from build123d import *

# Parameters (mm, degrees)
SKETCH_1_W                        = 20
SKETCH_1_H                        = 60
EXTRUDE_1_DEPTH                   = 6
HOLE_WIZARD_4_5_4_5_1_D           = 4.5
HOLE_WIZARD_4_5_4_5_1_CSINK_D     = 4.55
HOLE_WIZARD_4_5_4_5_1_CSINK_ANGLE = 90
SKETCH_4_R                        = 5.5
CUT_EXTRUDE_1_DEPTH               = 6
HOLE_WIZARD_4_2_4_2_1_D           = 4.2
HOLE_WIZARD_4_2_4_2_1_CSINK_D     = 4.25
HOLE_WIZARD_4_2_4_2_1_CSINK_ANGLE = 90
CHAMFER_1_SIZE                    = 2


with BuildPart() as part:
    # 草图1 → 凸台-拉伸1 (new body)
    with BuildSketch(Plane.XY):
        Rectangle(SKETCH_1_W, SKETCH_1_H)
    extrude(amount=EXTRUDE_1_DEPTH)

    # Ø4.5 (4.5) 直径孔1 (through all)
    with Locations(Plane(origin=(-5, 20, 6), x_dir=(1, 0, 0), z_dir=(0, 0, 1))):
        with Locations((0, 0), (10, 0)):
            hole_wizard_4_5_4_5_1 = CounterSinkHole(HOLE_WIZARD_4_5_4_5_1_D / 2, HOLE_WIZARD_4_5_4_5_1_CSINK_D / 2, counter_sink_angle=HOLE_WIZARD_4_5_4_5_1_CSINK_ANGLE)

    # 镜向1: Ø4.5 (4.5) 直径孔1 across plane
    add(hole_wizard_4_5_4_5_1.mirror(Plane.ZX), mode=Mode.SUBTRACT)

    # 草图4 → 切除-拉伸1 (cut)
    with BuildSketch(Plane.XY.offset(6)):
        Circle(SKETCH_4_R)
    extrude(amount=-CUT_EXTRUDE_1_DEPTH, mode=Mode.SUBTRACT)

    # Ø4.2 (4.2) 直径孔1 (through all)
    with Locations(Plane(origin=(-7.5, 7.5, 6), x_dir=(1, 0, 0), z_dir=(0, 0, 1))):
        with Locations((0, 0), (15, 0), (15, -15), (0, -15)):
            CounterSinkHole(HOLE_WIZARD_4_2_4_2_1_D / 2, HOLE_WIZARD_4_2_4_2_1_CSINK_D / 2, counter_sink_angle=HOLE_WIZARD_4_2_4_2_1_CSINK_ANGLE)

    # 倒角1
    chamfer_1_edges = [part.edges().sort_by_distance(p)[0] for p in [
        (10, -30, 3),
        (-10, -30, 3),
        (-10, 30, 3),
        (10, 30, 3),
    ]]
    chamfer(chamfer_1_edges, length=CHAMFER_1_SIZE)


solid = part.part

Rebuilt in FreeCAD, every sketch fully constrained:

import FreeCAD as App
import Part
import Sketcher
Q = App.Units.Quantity


def edges_at(feature, points):
    """Names of the edges that pass closest to the given points."""
    edges = feature.Shape.Edges
    near = lambda p: min(range(len(edges)), key=lambda i: edges[i].distToShape(Part.Vertex(*p))[0])
    return sorted({f"Edge{near(p) + 1}" for p in points})


def add_polygon(sketch, points):
    """Adds a closed chain of lines whose ends are joined by coincident constraints."""
    first, n = sketch.GeometryCount, len(points)
    for a, b in zip(points, points[1:] + points[:1]):
        sketch.addGeometry(Part.LineSegment(App.Vector(*a, 0), App.Vector(*b, 0)), False)
    for i in range(n):
        sketch.addConstraint(Sketcher.Constraint("Coincident", first + i, 2, first + (i + 1) % n, 1))

doc = App.newDocument("Part")
params = doc.addObject("Spreadsheet::Sheet", "Params")
for row, (alias, value) in enumerate([
    ("sketch1_width", "20 mm"),
    ("sketch1_height", "60 mm"),
    ("pad1_length", "6 mm"),
    ("sketch2_diameter", "4.5 mm"),
    ("hole_diameter", "4.5 mm"),
    ("hole_csink_diameter", "4.55 mm"),
    ("sketch3_diameter", "11 mm"),
    ("pocket1_length", "6 mm"),
    ("sketch4_diameter", "4.2 mm"),
    ("hole2_diameter", "4.2 mm"),
    ("hole2_csink_diameter", "4.25 mm"),
    ("chamfer_size", "2 mm"),
], start=1):
    params.set(f"A{row}", alias)
    params.set(f"B{row}", "=" + value)
    params.setAlias(f"B{row}", alias)

body = doc.addObject("PartDesign::Body", "Body")

sketch1 = doc.addObject("Sketcher::SketchObject", "Sketch")
body.addObject(sketch1)
sketch1.AttachmentSupport = (doc.XY_Plane, [""])
sketch1.MapMode = "FlatFace"
add_polygon(sketch1, [(-10, 30), (-10, -30), (10, -30), (10, 30)])
sketch1.addConstraint([
    Sketcher.Constraint("Vertical", 0),
    Sketcher.Constraint("Horizontal", 1),
    Sketcher.Constraint("Vertical", 2),
    Sketcher.Constraint("Horizontal", 3),
    Sketcher.Constraint("Symmetric", 0, 2, 2, 2, -1, 1),
    Sketcher.Constraint("DistanceX", 1, 1, 1, 2, Q("20 mm")),
    Sketcher.Constraint("DistanceY", 0, 2, 0, 1, Q("60 mm")),
])
sketch1.setExpression("Constraints[9]", "Params.sketch1_width")
sketch1.setExpression("Constraints[10]", "Params.sketch1_height")
pad1 = doc.addObject("PartDesign::Pad", "Pad")
body.addObject(pad1)
pad1.Profile = sketch1
pad1.setExpression("Length", "Params.pad1_length")

sketch2 = doc.addObject("Sketcher::SketchObject", "Sketch001")
body.addObject(sketch2)
sketch2.AttachmentSupport = (doc.XY_Plane, [""])
sketch2.MapMode = "FlatFace"
sketch2.AttachmentOffset = App.Placement(App.Vector(0, 0, 6), App.Rotation())
sketch2.addGeometry([
    Part.Circle(App.Vector(-5, 20, 0), App.Vector(0, 0, 1), 2.2),
    Part.Circle(App.Vector(5, 20, 0), App.Vector(0, 0, 1), 2.2),
], False)
sketch2.addConstraint([
    Sketcher.Constraint("Equal", 0, 1),
    Sketcher.Constraint("Symmetric", 0, 3, 1, 3, -2),
    Sketcher.Constraint("Diameter", 0, Q("4.5 mm")),
    Sketcher.Constraint("DistanceX", 0, 3, -1, 1, Q("5 mm")),
    Sketcher.Constraint("DistanceY", -1, 1, 0, 3, Q("20 mm")),
])
sketch2.setExpression("Constraints[2]", "Params.sketch2_diameter")
doc.recompute()
hole = doc.addObject("PartDesign::Hole", "Hole")
body.addObject(hole)
hole.Profile = sketch2
hole.ThreadType = "None"
hole.setExpression("Diameter", "Params.hole_diameter")
hole.DepthType = "ThroughAll"
hole.HoleCutType = "Countersink"
hole.setExpression("HoleCutDiameter", "Params.hole_csink_diameter")
hole.HoleCutCountersinkAngle = 90
doc.recompute()

mirrored = doc.addObject("PartDesign::Mirrored", "Mirrored")
body.addObject(mirrored)
mirrored.Originals = [hole]
mirrored.MirrorPlane = (doc.XZ_Plane, [""])
body.Tip = mirrored

sketch3 = doc.addObject("Sketcher::SketchObject", "Sketch002")
body.addObject(sketch3)
sketch3.AttachmentSupport = (doc.XY_Plane, [""])
sketch3.MapMode = "FlatFace"
sketch3.AttachmentOffset = App.Placement(App.Vector(0, 0, 6), App.Rotation())
sketch3.addGeometry(Part.Circle(App.Vector(0, 0, 0), App.Vector(0, 0, 1), 6), False)
sketch3.addConstraint([
    Sketcher.Constraint("Coincident", 0, 3, -1, 1),
    Sketcher.Constraint("Diameter", 0, Q("11 mm")),
])
sketch3.setExpression("Constraints[1]", "Params.sketch3_diameter")
pocket1 = doc.addObject("PartDesign::Pocket", "Pocket")
body.addObject(pocket1)
pocket1.Profile = sketch3
pocket1.setExpression("Length", "Params.pocket1_length")

sketch4 = doc.addObject("Sketcher::SketchObject", "Sketch003")
body.addObject(sketch4)
sketch4.AttachmentSupport = (doc.XY_Plane, [""])
sketch4.MapMode = "FlatFace"
sketch4.AttachmentOffset = App.Placement(App.Vector(0, 0, 6), App.Rotation())
sketch4.addGeometry([
    Part.Circle(App.Vector(-7.5, 7.5, 0), App.Vector(0, 0, 1), 2.1),
    Part.Circle(App.Vector(7.5, 7.5, 0), App.Vector(0, 0, 1), 2.1),
    Part.Circle(App.Vector(7.5, -7.5, 0), App.Vector(0, 0, 1), 2.1),
    Part.Circle(App.Vector(-7.5, -7.5, 0), App.Vector(0, 0, 1), 2.1),
], False)
sketch4.addConstraint([
    Sketcher.Constraint("Equal", 0, 1),
    Sketcher.Constraint("Equal", 1, 2),
    Sketcher.Constraint("Equal", 2, 3),
    Sketcher.Constraint("Symmetric", 0, 3, 2, 3, -1, 1),
    Sketcher.Constraint("Symmetric", 1, 3, 3, 3, -1, 1),
    Sketcher.Constraint("Symmetric", 0, 3, 1, 3, -2),
    Sketcher.Constraint("Diameter", 0, Q("4.2 mm")),
    Sketcher.Constraint("DistanceX", 0, 3, 1, 3, Q("15 mm")),
    Sketcher.Constraint("DistanceY", 2, 3, 1, 3, Q("15 mm")),
])
sketch4.setExpression("Constraints[6]", "Params.sketch4_diameter")
doc.recompute()
hole2 = doc.addObject("PartDesign::Hole", "Hole001")
body.addObject(hole2)
hole2.Profile = sketch4
hole2.ThreadType = "None"
hole2.setExpression("Diameter", "Params.hole2_diameter")
hole2.DepthType = "ThroughAll"
hole2.HoleCutType = "Countersink"
hole2.setExpression("HoleCutDiameter", "Params.hole2_csink_diameter")
hole2.HoleCutCountersinkAngle = 90
doc.recompute()

chamfer = doc.addObject("PartDesign::Chamfer", "Chamfer")
body.addObject(chamfer)
chamfer.Base = (hole2, edges_at(hole2, [
    (10, -30, 3),
    (-10, -30, 3),
    (-10, 30, 3),
    (10, 30, 3),
]))
chamfer.setExpression("Size", "Params.chamfer_size")

doc.recompute()
